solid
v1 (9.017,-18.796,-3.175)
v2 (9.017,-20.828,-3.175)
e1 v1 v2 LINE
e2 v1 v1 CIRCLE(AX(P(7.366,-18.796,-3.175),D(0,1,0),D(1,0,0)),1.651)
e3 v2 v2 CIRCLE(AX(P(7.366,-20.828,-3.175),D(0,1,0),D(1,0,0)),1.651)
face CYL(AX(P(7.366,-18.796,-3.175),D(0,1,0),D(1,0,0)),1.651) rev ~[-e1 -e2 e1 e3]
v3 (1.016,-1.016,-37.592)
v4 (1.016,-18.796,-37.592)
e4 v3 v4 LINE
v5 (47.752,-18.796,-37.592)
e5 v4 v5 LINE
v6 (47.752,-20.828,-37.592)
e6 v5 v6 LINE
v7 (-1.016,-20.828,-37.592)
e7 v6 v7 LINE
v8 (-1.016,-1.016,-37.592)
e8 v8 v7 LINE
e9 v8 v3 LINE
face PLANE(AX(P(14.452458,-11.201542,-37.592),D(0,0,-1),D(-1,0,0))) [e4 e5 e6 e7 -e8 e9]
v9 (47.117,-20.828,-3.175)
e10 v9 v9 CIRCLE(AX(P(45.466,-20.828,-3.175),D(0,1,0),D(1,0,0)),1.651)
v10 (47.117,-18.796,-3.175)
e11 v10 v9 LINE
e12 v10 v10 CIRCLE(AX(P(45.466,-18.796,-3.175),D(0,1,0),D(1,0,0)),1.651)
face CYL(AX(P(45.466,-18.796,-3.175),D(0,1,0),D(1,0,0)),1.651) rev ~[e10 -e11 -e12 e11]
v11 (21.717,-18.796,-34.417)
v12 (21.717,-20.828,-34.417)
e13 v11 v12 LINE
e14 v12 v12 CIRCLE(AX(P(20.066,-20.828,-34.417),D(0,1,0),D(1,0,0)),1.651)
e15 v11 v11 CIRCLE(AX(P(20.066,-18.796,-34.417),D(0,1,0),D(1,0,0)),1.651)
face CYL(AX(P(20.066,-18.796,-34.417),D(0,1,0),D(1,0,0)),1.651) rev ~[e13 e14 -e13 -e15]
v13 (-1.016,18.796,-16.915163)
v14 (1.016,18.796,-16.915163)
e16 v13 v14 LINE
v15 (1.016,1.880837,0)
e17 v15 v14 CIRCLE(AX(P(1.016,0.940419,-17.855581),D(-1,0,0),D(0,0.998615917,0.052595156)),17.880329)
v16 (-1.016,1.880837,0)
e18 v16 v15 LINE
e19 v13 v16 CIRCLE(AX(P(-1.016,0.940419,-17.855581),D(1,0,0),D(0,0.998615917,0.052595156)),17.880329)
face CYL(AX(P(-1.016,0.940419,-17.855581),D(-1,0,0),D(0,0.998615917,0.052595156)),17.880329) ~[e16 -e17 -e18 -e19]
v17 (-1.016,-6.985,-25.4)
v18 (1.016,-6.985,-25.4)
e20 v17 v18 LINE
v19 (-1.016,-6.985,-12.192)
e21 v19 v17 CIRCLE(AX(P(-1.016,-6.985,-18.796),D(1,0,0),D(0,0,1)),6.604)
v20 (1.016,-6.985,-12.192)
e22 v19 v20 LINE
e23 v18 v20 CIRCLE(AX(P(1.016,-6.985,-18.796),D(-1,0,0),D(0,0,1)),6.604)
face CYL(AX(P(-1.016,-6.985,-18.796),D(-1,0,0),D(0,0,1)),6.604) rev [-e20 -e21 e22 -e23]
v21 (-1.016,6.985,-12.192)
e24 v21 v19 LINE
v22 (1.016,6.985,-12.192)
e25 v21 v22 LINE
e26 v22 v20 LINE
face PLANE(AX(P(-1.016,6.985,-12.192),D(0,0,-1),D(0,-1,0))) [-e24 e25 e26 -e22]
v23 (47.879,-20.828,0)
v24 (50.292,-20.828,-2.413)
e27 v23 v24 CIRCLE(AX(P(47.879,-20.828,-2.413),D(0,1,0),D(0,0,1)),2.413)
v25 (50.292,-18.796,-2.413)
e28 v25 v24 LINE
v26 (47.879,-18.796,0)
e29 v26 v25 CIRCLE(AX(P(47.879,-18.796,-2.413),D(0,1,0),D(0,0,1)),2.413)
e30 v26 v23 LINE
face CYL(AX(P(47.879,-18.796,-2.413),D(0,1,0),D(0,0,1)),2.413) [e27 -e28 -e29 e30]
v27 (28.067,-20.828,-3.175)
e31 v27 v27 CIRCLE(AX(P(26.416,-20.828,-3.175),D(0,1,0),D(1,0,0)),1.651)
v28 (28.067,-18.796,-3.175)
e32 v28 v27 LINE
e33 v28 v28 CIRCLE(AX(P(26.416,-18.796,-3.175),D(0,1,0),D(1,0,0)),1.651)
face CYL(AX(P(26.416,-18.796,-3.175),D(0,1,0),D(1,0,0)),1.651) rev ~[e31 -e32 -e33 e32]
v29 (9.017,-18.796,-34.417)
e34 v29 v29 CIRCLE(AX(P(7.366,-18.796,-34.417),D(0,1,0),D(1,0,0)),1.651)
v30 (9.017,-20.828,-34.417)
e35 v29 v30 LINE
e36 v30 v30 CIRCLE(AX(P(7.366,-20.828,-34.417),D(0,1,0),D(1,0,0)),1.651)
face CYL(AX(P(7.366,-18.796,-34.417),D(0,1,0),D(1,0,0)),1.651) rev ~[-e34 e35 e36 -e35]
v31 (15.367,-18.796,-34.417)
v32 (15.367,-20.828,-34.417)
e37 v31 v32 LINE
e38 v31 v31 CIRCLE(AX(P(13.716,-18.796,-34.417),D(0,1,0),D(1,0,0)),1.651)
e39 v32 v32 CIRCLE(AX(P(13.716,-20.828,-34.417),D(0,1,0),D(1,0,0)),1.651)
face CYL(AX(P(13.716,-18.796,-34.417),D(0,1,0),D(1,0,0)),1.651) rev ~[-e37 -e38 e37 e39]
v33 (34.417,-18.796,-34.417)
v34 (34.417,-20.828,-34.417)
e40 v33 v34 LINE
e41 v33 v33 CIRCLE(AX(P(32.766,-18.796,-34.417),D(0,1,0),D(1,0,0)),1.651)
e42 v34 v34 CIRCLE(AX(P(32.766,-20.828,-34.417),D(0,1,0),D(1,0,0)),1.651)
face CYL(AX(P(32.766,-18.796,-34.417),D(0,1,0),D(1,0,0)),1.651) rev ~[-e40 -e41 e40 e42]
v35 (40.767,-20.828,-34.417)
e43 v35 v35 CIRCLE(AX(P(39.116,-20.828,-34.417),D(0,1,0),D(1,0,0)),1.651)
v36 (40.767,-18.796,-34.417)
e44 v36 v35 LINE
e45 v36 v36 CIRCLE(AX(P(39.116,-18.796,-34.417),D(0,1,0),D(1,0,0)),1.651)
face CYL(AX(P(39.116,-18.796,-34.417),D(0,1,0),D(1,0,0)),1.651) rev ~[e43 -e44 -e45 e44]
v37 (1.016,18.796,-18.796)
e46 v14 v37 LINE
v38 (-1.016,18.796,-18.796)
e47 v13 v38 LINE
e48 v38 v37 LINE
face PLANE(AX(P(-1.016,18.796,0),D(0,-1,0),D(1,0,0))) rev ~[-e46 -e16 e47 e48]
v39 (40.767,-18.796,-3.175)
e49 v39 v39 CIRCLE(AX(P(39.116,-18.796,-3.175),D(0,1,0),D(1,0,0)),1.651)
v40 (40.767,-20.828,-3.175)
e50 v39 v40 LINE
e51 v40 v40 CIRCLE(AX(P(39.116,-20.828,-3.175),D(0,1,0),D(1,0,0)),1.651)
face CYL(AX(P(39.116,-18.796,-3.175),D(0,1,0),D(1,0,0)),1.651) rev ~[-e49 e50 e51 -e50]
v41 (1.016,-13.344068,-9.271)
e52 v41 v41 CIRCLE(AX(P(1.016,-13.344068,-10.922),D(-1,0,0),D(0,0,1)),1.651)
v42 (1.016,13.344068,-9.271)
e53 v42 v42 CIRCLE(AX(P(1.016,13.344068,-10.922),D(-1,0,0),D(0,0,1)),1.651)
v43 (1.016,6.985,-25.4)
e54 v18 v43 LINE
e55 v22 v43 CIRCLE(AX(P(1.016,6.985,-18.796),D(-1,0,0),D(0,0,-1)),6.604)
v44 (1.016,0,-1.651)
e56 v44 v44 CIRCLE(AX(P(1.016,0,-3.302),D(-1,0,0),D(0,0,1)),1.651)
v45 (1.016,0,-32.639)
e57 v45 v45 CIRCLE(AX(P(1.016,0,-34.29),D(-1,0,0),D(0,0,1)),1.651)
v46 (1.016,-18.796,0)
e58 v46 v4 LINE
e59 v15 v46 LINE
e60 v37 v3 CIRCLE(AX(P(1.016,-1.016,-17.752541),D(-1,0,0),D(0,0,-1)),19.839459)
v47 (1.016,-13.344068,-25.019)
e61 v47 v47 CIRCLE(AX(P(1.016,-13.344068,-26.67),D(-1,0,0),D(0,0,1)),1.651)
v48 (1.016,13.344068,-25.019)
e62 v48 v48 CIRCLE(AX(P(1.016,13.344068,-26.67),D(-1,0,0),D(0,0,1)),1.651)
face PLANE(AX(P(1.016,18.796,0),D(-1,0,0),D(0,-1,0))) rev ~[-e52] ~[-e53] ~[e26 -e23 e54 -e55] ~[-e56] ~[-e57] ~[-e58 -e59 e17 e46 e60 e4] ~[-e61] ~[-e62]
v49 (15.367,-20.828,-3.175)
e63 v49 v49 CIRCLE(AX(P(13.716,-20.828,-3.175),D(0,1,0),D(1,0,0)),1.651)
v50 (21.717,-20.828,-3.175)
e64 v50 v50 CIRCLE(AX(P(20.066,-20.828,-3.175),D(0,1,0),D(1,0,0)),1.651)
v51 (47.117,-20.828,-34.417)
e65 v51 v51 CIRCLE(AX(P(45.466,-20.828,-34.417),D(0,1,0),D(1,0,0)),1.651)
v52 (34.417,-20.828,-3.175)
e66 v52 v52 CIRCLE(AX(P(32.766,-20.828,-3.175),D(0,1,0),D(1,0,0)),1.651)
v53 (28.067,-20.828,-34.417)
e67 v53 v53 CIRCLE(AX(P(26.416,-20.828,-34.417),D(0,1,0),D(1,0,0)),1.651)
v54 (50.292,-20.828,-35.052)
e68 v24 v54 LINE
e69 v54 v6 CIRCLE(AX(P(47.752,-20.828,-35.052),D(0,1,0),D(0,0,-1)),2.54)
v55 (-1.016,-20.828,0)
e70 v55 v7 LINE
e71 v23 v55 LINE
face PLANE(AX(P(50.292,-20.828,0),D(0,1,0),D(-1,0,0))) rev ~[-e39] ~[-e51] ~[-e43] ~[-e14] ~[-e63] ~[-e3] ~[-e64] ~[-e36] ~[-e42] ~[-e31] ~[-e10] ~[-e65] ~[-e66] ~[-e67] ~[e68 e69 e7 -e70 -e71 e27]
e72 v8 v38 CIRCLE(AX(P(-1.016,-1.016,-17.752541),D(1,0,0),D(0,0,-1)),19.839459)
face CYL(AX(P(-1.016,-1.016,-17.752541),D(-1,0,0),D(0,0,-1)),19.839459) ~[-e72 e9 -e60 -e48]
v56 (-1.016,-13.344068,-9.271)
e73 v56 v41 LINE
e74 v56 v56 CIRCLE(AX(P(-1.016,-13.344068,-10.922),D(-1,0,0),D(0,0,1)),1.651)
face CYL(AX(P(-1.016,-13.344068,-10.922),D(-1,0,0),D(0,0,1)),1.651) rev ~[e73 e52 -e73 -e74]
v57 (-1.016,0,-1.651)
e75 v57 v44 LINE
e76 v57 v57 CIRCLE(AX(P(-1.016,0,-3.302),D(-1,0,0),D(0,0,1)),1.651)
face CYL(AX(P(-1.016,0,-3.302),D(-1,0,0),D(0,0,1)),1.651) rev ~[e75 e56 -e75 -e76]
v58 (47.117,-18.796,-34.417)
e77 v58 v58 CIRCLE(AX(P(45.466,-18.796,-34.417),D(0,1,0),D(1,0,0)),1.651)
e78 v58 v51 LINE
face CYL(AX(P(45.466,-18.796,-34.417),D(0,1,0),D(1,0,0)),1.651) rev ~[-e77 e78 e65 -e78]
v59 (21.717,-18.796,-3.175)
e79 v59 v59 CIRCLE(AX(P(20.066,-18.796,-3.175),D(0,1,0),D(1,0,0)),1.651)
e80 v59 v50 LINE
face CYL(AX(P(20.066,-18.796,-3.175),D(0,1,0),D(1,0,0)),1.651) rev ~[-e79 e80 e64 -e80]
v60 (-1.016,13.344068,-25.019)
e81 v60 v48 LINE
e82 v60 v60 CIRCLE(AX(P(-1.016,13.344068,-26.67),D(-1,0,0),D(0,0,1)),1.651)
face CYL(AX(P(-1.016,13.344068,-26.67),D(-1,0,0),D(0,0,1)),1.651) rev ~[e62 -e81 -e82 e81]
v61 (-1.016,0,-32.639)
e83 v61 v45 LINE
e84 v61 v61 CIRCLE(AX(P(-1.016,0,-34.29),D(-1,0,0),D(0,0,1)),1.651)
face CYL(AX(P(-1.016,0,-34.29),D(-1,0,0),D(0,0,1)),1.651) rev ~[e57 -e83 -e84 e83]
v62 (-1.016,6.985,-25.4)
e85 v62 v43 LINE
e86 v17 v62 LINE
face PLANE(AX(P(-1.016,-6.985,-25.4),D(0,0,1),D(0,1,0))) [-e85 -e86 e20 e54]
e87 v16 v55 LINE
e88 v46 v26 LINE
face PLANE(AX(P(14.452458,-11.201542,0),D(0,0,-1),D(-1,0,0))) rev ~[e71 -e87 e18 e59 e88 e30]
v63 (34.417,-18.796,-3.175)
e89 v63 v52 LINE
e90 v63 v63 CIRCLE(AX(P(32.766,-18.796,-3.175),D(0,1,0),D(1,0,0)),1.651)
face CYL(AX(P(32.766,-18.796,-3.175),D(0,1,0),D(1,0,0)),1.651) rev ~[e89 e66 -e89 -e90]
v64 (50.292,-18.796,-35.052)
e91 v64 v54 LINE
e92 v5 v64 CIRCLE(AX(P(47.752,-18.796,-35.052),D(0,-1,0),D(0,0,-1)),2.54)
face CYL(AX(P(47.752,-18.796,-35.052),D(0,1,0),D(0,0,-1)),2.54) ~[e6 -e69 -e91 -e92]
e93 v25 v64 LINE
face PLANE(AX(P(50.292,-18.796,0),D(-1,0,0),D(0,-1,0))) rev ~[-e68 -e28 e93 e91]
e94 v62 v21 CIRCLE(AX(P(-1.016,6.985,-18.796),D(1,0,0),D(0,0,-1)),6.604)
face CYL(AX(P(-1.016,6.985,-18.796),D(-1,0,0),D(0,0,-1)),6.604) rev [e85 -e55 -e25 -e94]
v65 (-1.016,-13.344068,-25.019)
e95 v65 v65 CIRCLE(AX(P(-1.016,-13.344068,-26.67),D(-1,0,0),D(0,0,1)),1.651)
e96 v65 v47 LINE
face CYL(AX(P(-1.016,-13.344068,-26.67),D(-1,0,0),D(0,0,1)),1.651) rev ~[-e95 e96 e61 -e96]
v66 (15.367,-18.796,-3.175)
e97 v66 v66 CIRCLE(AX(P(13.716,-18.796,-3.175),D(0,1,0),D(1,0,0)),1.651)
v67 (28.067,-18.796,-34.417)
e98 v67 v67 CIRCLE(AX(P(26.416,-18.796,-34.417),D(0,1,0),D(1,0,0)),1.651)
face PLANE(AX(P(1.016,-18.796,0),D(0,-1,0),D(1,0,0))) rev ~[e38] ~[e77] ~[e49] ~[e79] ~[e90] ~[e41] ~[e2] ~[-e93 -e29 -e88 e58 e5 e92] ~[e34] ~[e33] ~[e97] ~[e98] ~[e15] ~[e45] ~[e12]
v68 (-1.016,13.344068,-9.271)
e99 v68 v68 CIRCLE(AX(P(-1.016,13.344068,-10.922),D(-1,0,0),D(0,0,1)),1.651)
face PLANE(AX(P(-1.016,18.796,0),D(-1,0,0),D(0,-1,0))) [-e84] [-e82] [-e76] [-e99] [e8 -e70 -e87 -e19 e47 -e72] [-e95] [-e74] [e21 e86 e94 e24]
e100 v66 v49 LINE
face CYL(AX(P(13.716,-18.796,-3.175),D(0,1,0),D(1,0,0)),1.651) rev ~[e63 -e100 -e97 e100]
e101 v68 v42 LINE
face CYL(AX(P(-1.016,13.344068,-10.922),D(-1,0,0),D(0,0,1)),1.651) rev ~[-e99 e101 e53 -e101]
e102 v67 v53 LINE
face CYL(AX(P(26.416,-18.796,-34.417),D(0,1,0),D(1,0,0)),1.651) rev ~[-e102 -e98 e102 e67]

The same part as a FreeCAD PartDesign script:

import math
import FreeCAD as App
import Part
import Sketcher
Q = App.Units.Quantity


def add_polygon(sketch, points):
    """Adds a closed chain of lines whose ends are joined by coincident constraints."""
    first, n = sketch.GeometryCount, len(points)
    for a, b in zip(points, points[1:] + points[:1]):
        sketch.addGeometry(Part.LineSegment(App.Vector(*a, 0), App.Vector(*b, 0)), False)
    for i in range(n):
        sketch.addConstraint(Sketcher.Constraint("Coincident", first + i, 2, first + (i + 1) % n, 1))

doc = App.newDocument("Part")
body = doc.addObject("PartDesign::Body", "Body")

# Sketch on XY plane
sketch1 = body.newObject("Sketcher::SketchObject", "Sketch")
sketch1.AttachmentSupport = (doc.getObject("XY_Plane"), [""])
sketch1.MapMode = "FlatFace"
add_polygon(sketch1, [(1, 18.8), (-1, 18.8), (-1, -20.8), (50.3, -20.8), (50.3, -18.8), (1, -18.8)])  # lines 0-5
sketch1.addConstraint(Sketcher.Constraint("Horizontal", 0))
sketch1.addConstraint(Sketcher.Constraint("Vertical", 1))
sketch1.addConstraint(Sketcher.Constraint("Horizontal", 2))
sketch1.addConstraint(Sketcher.Constraint("Vertical", 3))
sketch1.addConstraint(Sketcher.Constraint("Horizontal", 4))
sketch1.addConstraint(Sketcher.Constraint("Vertical", 5))
sketch1.addConstraint(Sketcher.Constraint("Symmetric", 0, 2, 4, 2, -1, 1))
sketch1.addConstraint(Sketcher.Constraint("Equal", 0, 3))
sketch1.addConstraint(Sketcher.Constraint("DistanceX", 0, 2, 0, 1, Q("0.08 in")))
sketch1.addConstraint(Sketcher.Constraint("DistanceX", 2, 1, 2, 2, Q("2.02 in")))
sketch1.addConstraint(Sketcher.Constraint("DistanceY", 1, 2, 1, 1, Q("1.56 in")))
pad1 = body.newObject("PartDesign::Pad", "Pad")
pad1.Profile = sketch1
pad1.Length = Q("1.48 in")
pad1.Reversed = True

# Sketch on YZ plane
sketch2 = body.newObject("Sketcher::SketchObject", "Sketch001")
sketch2.AttachmentSupport = (doc.getObject("YZ_Plane"), [""])
sketch2.MapMode = "FlatFace"
sketch2.AttachmentOffset = App.Placement(App.Vector(0, 0, -0.04 * 25.4), App.Rotation())
sketch2.addGeometry(Part.LineSegment(App.Vector(7, -25, 0), App.Vector(-7, -25, 0)), False)
sketch2.addGeometry(Part.ArcOfCircle(Part.Circle(App.Vector(-7, -19, 0), App.Vector(0, 0, 1), 7), math.radians(90), math.radians(270)), False)
sketch2.addGeometry(Part.LineSegment(App.Vector(-7, -12, 0), App.Vector(7, -12, 0)), False)
sketch2.addGeometry(Part.ArcOfCircle(Part.Circle(App.Vector(7, -19, 0), App.Vector(0, 0, 1), 7), math.radians(-90), math.radians(90)), False)
sketch2.addConstraint(Sketcher.Constraint("Tangent", 0, 2, 1, 2))
sketch2.addConstraint(Sketcher.Constraint("Tangent", 1, 1, 2, 1))
sketch2.addConstraint(Sketcher.Constraint("Tangent", 2, 2, 3, 2))
sketch2.addConstraint(Sketcher.Constraint("Tangent", 3, 1, 0, 1))
sketch2.addConstraint(Sketcher.Constraint("Horizontal", 0))
sketch2.addConstraint(Sketcher.Constraint("Horizontal", 2))
sketch2.addConstraint(Sketcher.Constraint("Radius", 1, Q("0.26 in")))
sketch2.addConstraint(Sketcher.Constraint("DistanceY", 0, 2, -1, 1, Q("1 in")))
sketch2.addConstraint(Sketcher.Constraint("DistanceX", 0, 2, 0, 1, Q("0.55 in")))
sketch2.addConstraint(Sketcher.Constraint("DistanceX", 1, 3, -1, 1, Q("0.275 in")))
pocket1 = body.newObject("PartDesign::Pocket", "Pocket")
pocket1.Profile = sketch2
pocket1.Length = Q("1.48 in")
pocket1.Reversed = True

# Sketch on YZ plane
sketch3 = body.newObject("Sketcher::SketchObject", "Sketch002")
sketch3.AttachmentSupport = (doc.getObject("YZ_Plane"), [""])
sketch3.MapMode = "FlatFace"
sketch3.AttachmentOffset = App.Placement(App.Vector(0, 0, -0.04 * 25.4), App.Rotation())
sketch3.addGeometry(Part.Circle(App.Vector(0, -34.3, 0), App.Vector(0, 0, 1), 1.7), False)
sketch3.addGeometry(Part.Circle(App.Vector(-13.3, -26.7, 0), App.Vector(0, 0, 1), 1.7), False)
sketch3.addGeometry(Part.Circle(App.Vector(-13.3, -10.9, 0), App.Vector(0, 0, 1), 1.7), False)
sketch3.addGeometry(Part.Circle(App.Vector(0, -3.3, 0), App.Vector(0, 0, 1), 1.7), False)
sketch3.addGeometry(Part.Circle(App.Vector(13.3, -10.9, 0), App.Vector(0, 0, 1), 1.7), False)
sketch3.addGeometry(Part.Circle(App.Vector(13.3, -26.7, 0), App.Vector(0, 0, 1), 1.7), False)
sketch3.addConstraint(Sketcher.Constraint("Equal", 0, 1))
sketch3.addConstraint(Sketcher.Constraint("Equal", 1, 2))
sketch3.addConstraint(Sketcher.Constraint("Equal", 2, 3))
sketch3.addConstraint(Sketcher.Constraint("Equal", 3, 4))
sketch3.addConstraint(Sketcher.Constraint("Equal", 4, 5))
sketch3.addConstraint(Sketcher.Constraint("Symmetric", 2, 3, 4, 3, -2))
sketch3.addConstraint(Sketcher.Constraint("Symmetric", 1, 3, 5, 3, -2))
sketch3.addConstraint(Sketcher.Constraint("PointOnObject", 0, 3, -2))
sketch3.addConstraint(Sketcher.Constraint("PointOnObject", 3, 3, -2))
sketch3.addConstraint(Sketcher.Constraint("Vertical", 1, 3, 2, 3))
sketch3.addConstraint(Sketcher.Constraint("Diameter", 0, Q("0.13 in")))
sketch3.addConstraint(Sketcher.Constraint("DistanceY", 0, 3, 1, 3, Q("0.3 in")))
sketch3.addConstraint(Sketcher.Constraint("DistanceY", 2, 3, 3, 3, Q("0.3 in")))
sketch3.addConstraint(Sketcher.Constraint("DistanceY", 0, 3, -1, 1, Q("1.35 in")))
sketch3.addConstraint(Sketcher.Constraint("DistanceY", 2, 3, -1, 1, Q("0.43 in")))
sketch3.addConstraint(Sketcher.Constraint("DistanceX", 1, 3, -1, 1, 13.344068))
pocket2 = body.newObject("PartDesign::Pocket", "Pocket001")
pocket2.Profile = sketch3
pocket2.Length = Q("1.48 in")
pocket2.Reversed = True

# Sketch on YZ plane
sketch4 = body.newObject("Sketcher::SketchObject", "Sketch003")
sketch4.AttachmentSupport = (doc.getObject("YZ_Plane"), [""])
sketch4.MapMode = "FlatFace"
sketch4.AttachmentOffset = App.Placement(App.Vector(0, 0, -0.04 * 25.4), App.Rotation())
sketch4.addGeometry(Part.LineSegment(App.Vector(19, -38, 0), App.Vector(-1, -38, 0)), False)
sketch4.addGeometry(Part.ArcOfCircle(Part.Circle(App.Vector(-1, -18, 0), App.Vector(0, 0, 1), 20), math.radians(-90), math.radians(-3)), False)
sketch4.addGeometry(Part.LineSegment(App.Vector(19, -19, 0), App.Vector(19, -38, 0)), False)
sketch4.addGeometry(Part.LineSegment(App.Vector(19, 0, 0), App.Vector(19, -17, 0)), False)
sketch4.addGeometry(Part.ArcOfCircle(Part.Circle(App.Vector(1, -18, 0), App.Vector(0, 0, 1), 18), math.radians(3), math.radians(87)), False)
sketch4.addGeometry(Part.LineSegment(App.Vector(2, 0, 0), App.Vector(19, 0, 0)), False)
sketch4.addConstraint(Sketcher.Constraint("Tangent", 0, 2, 1, 1))
sketch4.addConstraint(Sketcher.Constraint("Coincident", 1, 2, 2, 1))
sketch4.addConstraint(Sketcher.Constraint("Coincident", 2, 2, 0, 1))
sketch4.addConstraint(Sketcher.Constraint("Coincident", 3, 2, 4, 1))
sketch4.addConstraint(Sketcher.Constraint("Coincident", 4, 2, 5, 1))
sketch4.addConstraint(Sketcher.Constraint("Coincident", 5, 2, 3, 1))
sketch4.addConstraint(Sketcher.Constraint("Horizontal", 0))
sketch4.addConstraint(Sketcher.Constraint("Vertical", 2))
sketch4.addConstraint(Sketcher.Constraint("Vertical", 3))
sketch4.addConstraint(Sketcher.Constraint("Horizontal", 5))
sketch4.addConstraint(Sketcher.Constraint("PointOnObject", 4, 2, -1))
sketch4.addConstraint(Sketcher.Constraint("Vertical", 2, 2, 3, 2))
sketch4.addConstraint(Sketcher.Constraint("Equal", 5, 3))
sketch4.addConstraint(Sketcher.Constraint("DistanceX", 0, 2, 0, 1, Q("0.78 in")))
sketch4.addConstraint(Sketcher.Constraint("DistanceY", 2, 2, 2, 1, Q("0.74 in")))
sketch4.addConstraint(Sketcher.Constraint("DistanceX", 1, 3, -1, 1, Q("0.04 in")))
sketch4.addConstraint(Sketcher.Constraint("DistanceY", 0, 2, -1, 1, Q("1.48 in")))
sketch4.addConstraint(Sketcher.Constraint("Radius", 4, 17.880329))
sketch4.addConstraint(Sketcher.Constraint("DistanceX", 5, 1, 5, 2, 16.915163))
pocket3 = body.newObject("PartDesign::Pocket", "Pocket002")
pocket3.Profile = sketch4
pocket3.Length = Q("1.48 in")
pocket3.Reversed = True

# Sketch on XZ plane
sketch5 = body.newObject("Sketcher::SketchObject", "Sketch004")
sketch5.AttachmentSupport = (doc.getObject("XZ_Plane"), [""])
sketch5.MapMode = "FlatFace"
sketch5.AttachmentOffset = App.Placement(App.Vector(0, 0, 0.74 * 25.4), App.Rotation())
sketch5.addGeometry(Part.LineSegment(App.Vector(50.3, 0, 0), App.Vector(50.3, -2.4, 0)), False)
sketch5.addGeometry(Part.ArcOfCircle(Part.Circle(App.Vector(47.9, -2.4, 0), App.Vector(0, 0, 1), 2.4), math.radians(0), math.radians(90)), False)
sketch5.addGeometry(Part.LineSegment(App.Vector(47.9, 0, 0), App.Vector(50.3, 0, 0)), False)
sketch5.addConstraint(Sketcher.Constraint("Tangent", 0, 2, 1, 1))
sketch5.addConstraint(Sketcher.Constraint("Tangent", 1, 2, 2, 1))
sketch5.addConstraint(Sketcher.Constraint("Coincident", 2, 2, 0, 1))
sketch5.addConstraint(Sketcher.Constraint("Vertical", 0))
sketch5.addConstraint(Sketcher.Constraint("Horizontal", 2))
sketch5.addConstraint(Sketcher.Constraint("PointOnObject", 1, 2, -1))
sketch5.addConstraint(Sketcher.Constraint("Radius", 1, Q("0.095 in")))
sketch5.addConstraint(Sketcher.Constraint("DistanceX", -1, 1, 0, 2, Q("1.98 in")))
pocket4 = body.newObject("PartDesign::Pocket", "Pocket003")
pocket4.Profile = sketch5
pocket4.Length = Q("1.48 in")
pocket4.Reversed = True

# Sketch on XZ plane
sketch6 = body.newObject("Sketcher::SketchObject", "Sketch005")
sketch6.AttachmentSupport = (doc.getObject("XZ_Plane"), [""])
sketch6.MapMode = "FlatFace"
sketch6.AttachmentOffset = App.Placement(App.Vector(0, 0, 0.74 * 25.4), App.Rotation())
sketch6.addGeometry(Part.Circle(App.Vector(45.5, -3.2, 0), App.Vector(0, 0, 1), 1.7), False)
sketch6.addGeometry(Part.Circle(App.Vector(45.5, -34.4, 0), App.Vector(0, 0, 1), 1.7), False)
sketch6.addConstraint(Sketcher.Constraint("Equal", 0, 1))
sketch6.addConstraint(Sketcher.Constraint("Vertical", 0, 3, 1, 3))
sketch6.addConstraint(Sketcher.Constraint("Diameter", 0, Q("0.13 in")))
sketch6.addConstraint(Sketcher.Constraint("DistanceX", -1, 1, 0, 3, Q("1.79 in")))
sketch6.addConstraint(Sketcher.Constraint("DistanceY", 1, 3, 0, 3, Q("1.23 in")))
sketch6.addConstraint(Sketcher.Constraint("DistanceY", 0, 3, -1, 1, Q("0.125 in")))
pocket5 = body.newObject("PartDesign::Pocket", "Pocket004")
pocket5.Profile = sketch6
pocket5.Length = Q("1.48 in")
pocket5.Reversed = True
doc.recompute()

linearpattern = body.newObject("PartDesign::LinearPattern", "LinearPattern")
linearpattern.Originals = [pocket5]
linearpattern.Direction = (doc.getObject("X_Axis"), [""])
linearpattern.Mode = "offset"
linearpattern.Offset = Q("0.25 in")
linearpattern.Occurrences = 7
linearpattern.Reversed = True
body.Tip = linearpattern

# Sketch on XZ plane
sketch7 = body.newObject("Sketcher::SketchObject", "Sketch006")
sketch7.AttachmentSupport = (doc.getObject("XZ_Plane"), [""])
sketch7.MapMode = "FlatFace"
sketch7.AttachmentOffset = App.Placement(App.Vector(0, 0, 0.74 * 25.4), App.Rotation())
sketch7.addGeometry(Part.LineSegment(App.Vector(50.3, -35.1, 0), App.Vector(50.3, -37.6, 0)), False)
sketch7.addGeometry(Part.LineSegment(App.Vector(50.3, -37.6, 0), App.Vector(47.8, -37.6, 0)), False)
sketch7.addGeometry(Part.ArcOfCircle(Part.Circle(App.Vector(47.8, -35.1, 0), App.Vector(0, 0, 1), 2.5), math.radians(-90), math.radians(0)), False)
sketch7.addConstraint(Sketcher.Constraint("Coincident", 0, 2, 1, 1))
sketch7.addConstraint(Sketcher.Constraint("Tangent", 1, 2, 2, 1))
sketch7.addConstraint(Sketcher.Constraint("Tangent", 2, 2, 0, 1))
sketch7.addConstraint(Sketcher.Constraint("Vertical", 0))
sketch7.addConstraint(Sketcher.Constraint("Horizontal", 1))
sketch7.addConstraint(Sketcher.Constraint("Radius", 2, Q("0.1 in")))
sketch7.addConstraint(Sketcher.Constraint("DistanceX", -1, 1, 2, 3, Q("1.88 in")))
sketch7.addConstraint(Sketcher.Constraint("DistanceY", 2, 3, -1, 1, Q("1.38 in")))
pocket6 = body.newObject("PartDesign::Pocket", "Pocket005")
pocket6.Profile = sketch7
pocket6.Length = Q("1.48 in")
pocket6.Reversed = True

doc.recompute()
